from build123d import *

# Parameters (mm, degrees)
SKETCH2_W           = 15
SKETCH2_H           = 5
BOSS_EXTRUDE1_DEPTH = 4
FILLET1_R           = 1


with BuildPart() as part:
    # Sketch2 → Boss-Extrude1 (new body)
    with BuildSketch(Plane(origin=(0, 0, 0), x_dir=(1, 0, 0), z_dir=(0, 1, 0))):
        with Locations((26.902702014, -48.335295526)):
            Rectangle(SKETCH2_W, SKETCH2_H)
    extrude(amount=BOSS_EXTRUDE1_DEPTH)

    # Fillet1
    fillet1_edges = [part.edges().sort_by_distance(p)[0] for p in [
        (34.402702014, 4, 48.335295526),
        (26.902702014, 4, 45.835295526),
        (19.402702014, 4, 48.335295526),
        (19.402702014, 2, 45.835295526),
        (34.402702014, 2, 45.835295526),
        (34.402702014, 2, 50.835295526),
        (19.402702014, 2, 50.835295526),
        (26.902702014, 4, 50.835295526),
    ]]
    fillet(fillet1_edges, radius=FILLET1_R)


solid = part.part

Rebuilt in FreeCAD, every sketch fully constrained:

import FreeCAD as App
import Part
import Sketcher
from FreeCAD import Vector


def edges_at(feature, points):
    """Names of the edges that pass closest to the given points."""
    edges = feature.Shape.Edges
    near = lambda p: min(range(len(edges)), key=lambda i: edges[i].distToShape(Part.Vertex(*p))[0])
    return sorted({f"Edge{near(p) + 1}" for p in points})

doc = App.newDocument("Part")
body = doc.addObject("PartDesign::Body", "Body")

# Sketch on XZ plane
sketch1 = body.newObject("Sketcher::SketchObject", "Sketch")
sketch1.AttachmentSupport = (doc.getObject("XZ_Plane"), [""])
sketch1.MapMode = "FlatFace"
sketch1.addGeometry(Part.LineSegment(Vector(19.402702, 45.835296, 0), Vector(19.402702, 50.835296, 0)), False)
sketch1.addGeometry(Part.LineSegment(Vector(19.402702, 50.835296, 0), Vector(34.402702, 50.835296, 0)), False)
sketch1.addGeometry(Part.LineSegment(Vector(34.402702, 50.835296, 0), Vector(34.402702, 45.835296, 0)), False)
sketch1.addGeometry(Part.LineSegment(Vector(34.402702, 45.835296, 0), Vector(19.402702, 45.835296, 0)), False)
sketch1.addConstraint(Sketcher.Constraint("Coincident", 0, 2, 1, 1))
sketch1.addConstraint(Sketcher.Constraint("Coincident", 1, 2, 2, 1))
sketch1.addConstraint(Sketcher.Constraint("Coincident", 2, 2, 3, 1))
sketch1.addConstraint(Sketcher.Constraint("Coincident", 3, 2, 0, 1))
sketch1.addConstraint(Sketcher.Constraint("Vertical", 0))
sketch1.addConstraint(Sketcher.Constraint("Horizontal", 1))
sketch1.addConstraint(Sketcher.Constraint("Vertical", 2))
sketch1.addConstraint(Sketcher.Constraint("Horizontal", 3))
sketch1.addConstraint(Sketcher.Constraint("DistanceX", 1, 1, 1, 2, 15.0))
sketch1.addConstraint(Sketcher.Constraint("DistanceY", 0, 1, 0, 2, 5.0))
sketch1.addConstraint(Sketcher.Constraint("DistanceX", -1, 1, 0, 2, 19.402702))
sketch1.addConstraint(Sketcher.Constraint("DistanceY", -1, 1, 0, 2, 50.835296))
pad1 = body.newObject("PartDesign::Pad", "Pad")
pad1.Profile = sketch1
pad1.Length = 4
pad1.Reversed = True
doc.recompute()

fillet = body.newObject("PartDesign::Fillet", "Fillet")
fillet.Base = (pad1, edges_at(pad1, [
    (34.403, 4, 48.335),
    (26.903, 4, 45.835),
    (19.403, 4, 48.335),
    (19.403, 2, 45.835),
    (34.403, 2, 45.835),
    (34.403, 2, 50.835),
    (19.403, 2, 50.835),
    (26.903, 4, 50.835),
]))
fillet.Radius = 1

doc.recompute()
